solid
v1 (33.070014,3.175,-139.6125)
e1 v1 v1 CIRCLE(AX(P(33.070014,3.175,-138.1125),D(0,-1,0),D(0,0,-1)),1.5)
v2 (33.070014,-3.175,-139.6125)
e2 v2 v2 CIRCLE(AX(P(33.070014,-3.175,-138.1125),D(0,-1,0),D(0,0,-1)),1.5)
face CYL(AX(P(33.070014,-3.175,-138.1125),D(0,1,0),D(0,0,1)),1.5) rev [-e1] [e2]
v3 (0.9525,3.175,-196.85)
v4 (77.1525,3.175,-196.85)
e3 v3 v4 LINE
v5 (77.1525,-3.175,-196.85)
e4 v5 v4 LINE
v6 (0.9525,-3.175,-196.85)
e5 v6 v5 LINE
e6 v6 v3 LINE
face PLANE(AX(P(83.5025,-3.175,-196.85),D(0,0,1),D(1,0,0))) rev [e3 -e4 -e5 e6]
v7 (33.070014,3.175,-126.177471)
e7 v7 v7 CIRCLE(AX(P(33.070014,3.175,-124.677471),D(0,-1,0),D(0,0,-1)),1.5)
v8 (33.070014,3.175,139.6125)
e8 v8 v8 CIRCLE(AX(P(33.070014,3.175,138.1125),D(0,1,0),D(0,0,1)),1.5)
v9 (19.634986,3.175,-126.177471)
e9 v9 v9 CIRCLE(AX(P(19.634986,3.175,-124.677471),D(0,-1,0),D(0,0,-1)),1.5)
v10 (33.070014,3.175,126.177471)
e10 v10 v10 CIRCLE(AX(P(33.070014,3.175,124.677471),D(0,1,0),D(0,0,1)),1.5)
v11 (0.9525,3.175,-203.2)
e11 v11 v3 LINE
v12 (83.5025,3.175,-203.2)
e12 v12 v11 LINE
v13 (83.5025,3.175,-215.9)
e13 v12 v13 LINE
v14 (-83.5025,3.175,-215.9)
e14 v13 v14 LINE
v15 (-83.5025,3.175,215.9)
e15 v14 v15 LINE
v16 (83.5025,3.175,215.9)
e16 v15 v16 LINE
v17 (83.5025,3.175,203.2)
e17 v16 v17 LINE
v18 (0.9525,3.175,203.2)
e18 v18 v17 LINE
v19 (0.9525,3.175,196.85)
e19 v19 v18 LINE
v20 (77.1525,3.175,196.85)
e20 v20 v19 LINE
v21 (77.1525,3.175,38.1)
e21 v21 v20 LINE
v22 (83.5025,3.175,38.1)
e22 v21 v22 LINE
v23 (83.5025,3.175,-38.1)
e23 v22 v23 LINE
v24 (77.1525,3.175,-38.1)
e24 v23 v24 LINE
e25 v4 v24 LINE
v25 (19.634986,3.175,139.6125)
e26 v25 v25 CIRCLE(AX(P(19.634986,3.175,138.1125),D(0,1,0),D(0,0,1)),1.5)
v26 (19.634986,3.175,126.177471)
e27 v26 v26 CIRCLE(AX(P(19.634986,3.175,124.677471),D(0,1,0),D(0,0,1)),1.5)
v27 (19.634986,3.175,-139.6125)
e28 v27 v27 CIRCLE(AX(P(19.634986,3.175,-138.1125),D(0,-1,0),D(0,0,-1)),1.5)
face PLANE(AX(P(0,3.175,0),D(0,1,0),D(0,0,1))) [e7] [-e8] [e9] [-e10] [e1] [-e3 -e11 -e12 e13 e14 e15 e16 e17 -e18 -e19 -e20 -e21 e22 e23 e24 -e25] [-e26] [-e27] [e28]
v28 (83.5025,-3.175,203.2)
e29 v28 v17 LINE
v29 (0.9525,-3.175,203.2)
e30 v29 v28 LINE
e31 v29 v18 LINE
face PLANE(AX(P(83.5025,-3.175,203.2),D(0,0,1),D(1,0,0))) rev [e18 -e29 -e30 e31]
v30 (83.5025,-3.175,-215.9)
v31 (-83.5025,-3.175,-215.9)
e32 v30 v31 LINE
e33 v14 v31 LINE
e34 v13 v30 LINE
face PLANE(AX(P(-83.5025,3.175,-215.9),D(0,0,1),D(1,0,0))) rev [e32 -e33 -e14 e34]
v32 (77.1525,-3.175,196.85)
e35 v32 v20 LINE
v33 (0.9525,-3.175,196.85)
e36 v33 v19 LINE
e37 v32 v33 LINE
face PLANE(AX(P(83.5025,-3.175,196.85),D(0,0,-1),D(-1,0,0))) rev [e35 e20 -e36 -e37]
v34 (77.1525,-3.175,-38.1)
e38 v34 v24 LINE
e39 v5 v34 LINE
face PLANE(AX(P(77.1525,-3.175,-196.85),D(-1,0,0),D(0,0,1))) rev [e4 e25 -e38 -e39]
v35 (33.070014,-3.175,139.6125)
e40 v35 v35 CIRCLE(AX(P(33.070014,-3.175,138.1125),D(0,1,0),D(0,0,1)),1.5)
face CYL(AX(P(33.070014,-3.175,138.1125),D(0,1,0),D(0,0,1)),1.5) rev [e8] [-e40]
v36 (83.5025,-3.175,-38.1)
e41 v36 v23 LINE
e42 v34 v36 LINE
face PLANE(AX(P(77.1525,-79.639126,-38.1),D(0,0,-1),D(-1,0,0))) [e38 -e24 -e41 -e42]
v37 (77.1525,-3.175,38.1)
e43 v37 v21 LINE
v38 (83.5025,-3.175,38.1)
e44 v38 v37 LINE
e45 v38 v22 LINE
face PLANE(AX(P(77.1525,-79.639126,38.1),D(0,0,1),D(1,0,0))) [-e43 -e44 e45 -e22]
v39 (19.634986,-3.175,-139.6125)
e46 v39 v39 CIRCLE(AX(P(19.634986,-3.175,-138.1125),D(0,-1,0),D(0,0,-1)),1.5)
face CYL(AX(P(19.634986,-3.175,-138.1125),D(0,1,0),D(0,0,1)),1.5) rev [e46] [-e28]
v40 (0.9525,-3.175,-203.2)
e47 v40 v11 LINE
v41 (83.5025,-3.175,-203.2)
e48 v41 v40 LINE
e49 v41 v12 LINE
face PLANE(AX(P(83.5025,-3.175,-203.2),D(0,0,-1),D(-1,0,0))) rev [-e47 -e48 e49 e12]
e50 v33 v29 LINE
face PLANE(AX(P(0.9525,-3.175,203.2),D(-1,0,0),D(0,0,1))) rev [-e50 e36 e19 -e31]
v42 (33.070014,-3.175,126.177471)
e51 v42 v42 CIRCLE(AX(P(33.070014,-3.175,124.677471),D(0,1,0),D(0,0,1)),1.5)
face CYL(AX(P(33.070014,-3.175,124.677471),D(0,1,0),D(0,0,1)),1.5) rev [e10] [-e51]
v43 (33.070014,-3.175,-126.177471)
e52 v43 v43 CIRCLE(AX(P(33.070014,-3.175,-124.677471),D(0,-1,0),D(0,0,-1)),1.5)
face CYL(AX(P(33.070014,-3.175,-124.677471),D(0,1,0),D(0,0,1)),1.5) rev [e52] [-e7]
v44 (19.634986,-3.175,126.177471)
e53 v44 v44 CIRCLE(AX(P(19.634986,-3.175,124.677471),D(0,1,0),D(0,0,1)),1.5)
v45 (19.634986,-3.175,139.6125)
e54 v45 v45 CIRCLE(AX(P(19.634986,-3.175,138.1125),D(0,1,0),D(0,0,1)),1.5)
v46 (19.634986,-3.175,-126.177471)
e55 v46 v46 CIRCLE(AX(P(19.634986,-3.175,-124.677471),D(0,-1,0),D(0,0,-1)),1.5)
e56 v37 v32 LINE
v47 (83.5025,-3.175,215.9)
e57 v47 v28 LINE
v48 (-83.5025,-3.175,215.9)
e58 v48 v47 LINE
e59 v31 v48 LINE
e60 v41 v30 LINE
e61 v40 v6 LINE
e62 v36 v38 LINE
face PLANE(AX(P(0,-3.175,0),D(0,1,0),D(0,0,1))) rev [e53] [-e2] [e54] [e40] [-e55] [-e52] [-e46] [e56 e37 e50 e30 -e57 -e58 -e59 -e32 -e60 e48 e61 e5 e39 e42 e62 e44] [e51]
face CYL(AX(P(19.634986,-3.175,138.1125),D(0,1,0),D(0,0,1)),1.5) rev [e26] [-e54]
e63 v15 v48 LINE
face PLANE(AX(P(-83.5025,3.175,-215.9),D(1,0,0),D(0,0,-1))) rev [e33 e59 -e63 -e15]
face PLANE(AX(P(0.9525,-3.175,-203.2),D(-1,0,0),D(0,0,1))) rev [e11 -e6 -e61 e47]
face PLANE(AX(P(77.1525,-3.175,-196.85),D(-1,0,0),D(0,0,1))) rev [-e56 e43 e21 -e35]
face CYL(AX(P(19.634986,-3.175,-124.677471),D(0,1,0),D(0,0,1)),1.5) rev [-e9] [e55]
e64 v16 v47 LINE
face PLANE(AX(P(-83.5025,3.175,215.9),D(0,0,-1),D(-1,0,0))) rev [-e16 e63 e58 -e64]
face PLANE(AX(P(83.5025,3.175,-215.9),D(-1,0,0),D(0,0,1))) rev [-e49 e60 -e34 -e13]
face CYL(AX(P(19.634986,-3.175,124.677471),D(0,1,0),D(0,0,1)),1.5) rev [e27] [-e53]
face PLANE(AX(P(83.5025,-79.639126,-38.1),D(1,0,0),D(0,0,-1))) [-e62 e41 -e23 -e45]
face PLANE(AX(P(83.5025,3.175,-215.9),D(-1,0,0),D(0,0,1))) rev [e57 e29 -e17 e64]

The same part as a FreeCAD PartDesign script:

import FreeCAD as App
import Part
import Sketcher
from FreeCAD import Vector
Q = App.Units.Quantity

doc = App.newDocument("Part")
body = doc.addObject("PartDesign::Body", "Body")

sketch1 = body.newObject("Sketcher::SketchObject", "Sketch")
sketch1.AttachmentSupport = (doc.getObject("XZ_Plane"), [""])
sketch1.MapMode = "FlatFace"
sketch1.addGeometry([
    Part.LineSegment(Vector(-84, -216, 0), Vector(-84, 216, 0)),
    Part.LineSegment(Vector(-84, 216, 0), Vector(84, 216, 0)),
    Part.LineSegment(Vector(84, 216, 0), Vector(84, -216, 0)),
    Part.LineSegment(Vector(84, -216, 0), Vector(-84, -216, 0)),
], False)
sketch1.addConstraint([
    Sketcher.Constraint("Coincident", 0, 2, 1, 1),
    Sketcher.Constraint("Coincident", 1, 2, 2, 1),
    Sketcher.Constraint("Coincident", 2, 2, 3, 1),
    Sketcher.Constraint("Coincident", 3, 2, 0, 1),
    Sketcher.Constraint("Vertical", 0),
    Sketcher.Constraint("Horizontal", 1),
    Sketcher.Constraint("Vertical", 2),
    Sketcher.Constraint("Horizontal", 3),
    Sketcher.Constraint("Symmetric", 0, 2, 2, 2, -1, 1),
    Sketcher.Constraint("DistanceY", 0, 1, 0, 2, Q("17 in")),
    Sketcher.Constraint("DistanceX", 1, 1, 1, 2, Q("6.575 in")),
])
pad1 = body.newObject("PartDesign::Pad", "Pad")
pad1.Profile = sketch1
pad1.Length = Q("0.25 in")
pad1.Midplane = True

sketch2 = body.newObject("Sketcher::SketchObject", "Sketch001")
sketch2.AttachmentSupport = (doc.getObject("XZ_Plane"), [""])
sketch2.MapMode = "FlatFace"
sketch2.AttachmentOffset = App.Placement(Vector(0, 0, -0.125 * 25.4), App.Rotation())
sketch2.addGeometry([
    Part.LineSegment(Vector(77, -197, 0), Vector(77, 197, 0)),
    Part.LineSegment(Vector(77, 197, 0), Vector(84, 197, 0)),
    Part.LineSegment(Vector(84, 197, 0), Vector(84, -197, 0)),
    Part.LineSegment(Vector(84, -197, 0), Vector(77, -197, 0)),
], False)
sketch2.addConstraint([
    Sketcher.Constraint("Coincident", 0, 2, 1, 1),
    Sketcher.Constraint("Coincident", 1, 2, 2, 1),
    Sketcher.Constraint("Coincident", 2, 2, 3, 1),
    Sketcher.Constraint("Coincident", 3, 2, 0, 1),
    Sketcher.Constraint("Vertical", 0),
    Sketcher.Constraint("Horizontal", 1),
    Sketcher.Constraint("Vertical", 2),
    Sketcher.Constraint("Horizontal", 3),
    Sketcher.Constraint("DistanceY", 0, 1, 0, 2, Q("15.5 in")),
    Sketcher.Constraint("DistanceX", 1, 1, 1, 2, Q("0.25 in")),
    Sketcher.Constraint("DistanceY", -1, 1, 0, 2, Q("7.75 in")),
    Sketcher.Constraint("DistanceX", -1, 1, 0, 2, Q("3.0375 in")),
])
pocket1 = body.newObject("PartDesign::Pocket", "Pocket")
pocket1.Profile = sketch2
pocket1.Type = "ThroughAll"
pocket1.Reversed = True

sketch3 = body.newObject("Sketcher::SketchObject", "Sketch002")
sketch3.AttachmentSupport = (doc.getObject("XZ_Plane"), [""])
sketch3.MapMode = "FlatFace"
sketch3.AttachmentOffset = App.Placement(Vector(0, 0, -0.125 * 25.4), App.Rotation())
sketch3.addGeometry([
    Part.Circle(Vector(19.6, 124.7, 0), Vector(0, 0, 1), 1.5),
    Part.Circle(Vector(19.6, 138.1, 0), Vector(0, 0, 1), 1.5),
    Part.Circle(Vector(33.1, 124.7, 0), Vector(0, 0, 1), 1.5),
    Part.Circle(Vector(33.1, 138.1, 0), Vector(0, 0, 1), 1.5),
], False)
sketch3.addConstraint([
    Sketcher.Constraint("Equal", 0, 1),
    Sketcher.Constraint("Equal", 1, 2),
    Sketcher.Constraint("Equal", 2, 3),
    Sketcher.Constraint("Horizontal", 0, 3, 2, 3),
    Sketcher.Constraint("Horizontal", 1, 3, 3, 3),
    Sketcher.Constraint("Vertical", 0, 3, 1, 3),
    Sketcher.Constraint("Vertical", 2, 3, 3, 3),
    Sketcher.Constraint("Diameter", 0, Q("3 mm")),
    Sketcher.Constraint("DistanceY", -1, 1, 1, 3, Q("5.4375 in")),
    Sketcher.Constraint("DistanceY", -1, 1, 0, 3, Q("124.677471 mm")),
    Sketcher.Constraint("DistanceX", 0, 3, 2, 3, Q("13.435029 mm")),
    Sketcher.Constraint("DistanceX", -1, 1, 0, 3, Q("19.634986 mm")),
])
pocket2 = body.newObject("PartDesign::Pocket", "Pocket001")
pocket2.Profile = sketch3
pocket2.Type = "ThroughAll"
pocket2.Reversed = True
doc.recompute()

mirrored = body.newObject("PartDesign::Mirrored", "Mirrored")
mirrored.Originals = [pocket2]
mirrored.MirrorPlane = (doc.getObject("XY_Plane"), [""])
body.Tip = mirrored

sketch4 = body.newObject("Sketcher::SketchObject", "Sketch003")
sketch4.AttachmentSupport = (doc.getObject("XZ_Plane"), [""])
sketch4.MapMode = "FlatFace"
sketch4.AttachmentOffset = App.Placement(Vector(0, 0, -0.125 * 25.4), App.Rotation())
sketch4.addGeometry([
    Part.LineSegment(Vector(1, -203, 0), Vector(1, -197, 0)),
    Part.LineSegment(Vector(1, -197, 0), Vector(84, -197, 0)),
    Part.LineSegment(Vector(84, -197, 0), Vector(84, -203, 0)),
    Part.LineSegment(Vector(84, -203, 0), Vector(1, -203, 0)),
    Part.LineSegment(Vector(1, 197, 0), Vector(1, 203, 0)),
    Part.LineSegment(Vector(1, 203, 0), Vector(84, 203, 0)),
    Part.LineSegment(Vector(84, 203, 0), Vector(84, 197, 0)),
    Part.LineSegment(Vector(84, 197, 0), Vector(1, 197, 0)),
], False)
sketch4.addConstraint([
    Sketcher.Constraint("Coincident", 0, 2, 1, 1),
    Sketcher.Constraint("Coincident", 1, 2, 2, 1),
    Sketcher.Constraint("Coincident", 2, 2, 3, 1),
    Sketcher.Constraint("Coincident", 3, 2, 0, 1),
    Sketcher.Constraint("Coincident", 4, 2, 5, 1),
    Sketcher.Constraint("Coincident", 5, 2, 6, 1),
    Sketcher.Constraint("Coincident", 6, 2, 7, 1),
    Sketcher.Constraint("Coincident", 7, 2, 4, 1),
    Sketcher.Constraint("Vertical", 0),
    Sketcher.Constraint("Horizontal", 1),
    Sketcher.Constraint("Vertical", 2),
    Sketcher.Constraint("Horizontal", 3),
    Sketcher.Constraint("Vertical", 4),
    Sketcher.Constraint("Horizontal", 5),
    Sketcher.Constraint("Vertical", 6),
    Sketcher.Constraint("Horizontal", 7),
    Sketcher.Constraint("Symmetric", 3, 2, 4, 2, -1),
    Sketcher.Constraint("Symmetric", 1, 2, 6, 2, -1),
    Sketcher.Constraint("DistanceY", 2, 2, -1, 1, Q("8 in")),
    Sketcher.Constraint("DistanceX", 1, 1, 1, 2, Q("3.25 in")),
    Sketcher.Constraint("DistanceY", 0, 1, 0, 2, Q("0.25 in")),
    Sketcher.Constraint("DistanceX", -1, 1, 0, 2, Q("0.0375 in")),
])
pocket3 = body.newObject("PartDesign::Pocket", "Pocket002")
pocket3.Profile = sketch4
pocket3.Type = "ThroughAll"
pocket3.Reversed = True

sketch5 = body.newObject("Sketcher::SketchObject", "Sketch004")
sketch5.AttachmentSupport = (doc.getObject("XZ_Plane"), [""])
sketch5.MapMode = "FlatFace"
sketch5.AttachmentOffset = App.Placement(Vector(0, 0, -0.125 * 25.4), App.Rotation())
sketch5.addGeometry([
    Part.LineSegment(Vector(77, -38, 0), Vector(77, 38, 0)),
    Part.LineSegment(Vector(77, 38, 0), Vector(84, 38, 0)),
    Part.LineSegment(Vector(84, 38, 0), Vector(84, -38, 0)),
    Part.LineSegment(Vector(84, -38, 0), Vector(77, -38, 0)),
], False)
sketch5.addConstraint([
    Sketcher.Constraint("Coincident", 0, 2, 1, 1),
    Sketcher.Constraint("Coincident", 1, 2, 2, 1),
    Sketcher.Constraint("Coincident", 2, 2, 3, 1),
    Sketcher.Constraint("Coincident", 3, 2, 0, 1),
    Sketcher.Constraint("Vertical", 0),
    Sketcher.Constraint("Horizontal", 1),
    Sketcher.Constraint("Vertical", 2),
    Sketcher.Constraint("Horizontal", 3),
    Sketcher.Constraint("DistanceY", 0, 1, 0, 2, Q("3 in")),
    Sketcher.Constraint("DistanceX", 1, 1, 1, 2, Q("0.25 in")),
    Sketcher.Constraint("DistanceY", -1, 1, 0, 2, Q("1.5 in")),
    Sketcher.Constraint("DistanceX", -1, 1, 0, 2, Q("3.0375 in")),
])
pad2 = body.newObject("PartDesign::Pad", "Pad001")
pad2.Profile = sketch5
pad2.Length = Q("0.25 in")

doc.recompute()
